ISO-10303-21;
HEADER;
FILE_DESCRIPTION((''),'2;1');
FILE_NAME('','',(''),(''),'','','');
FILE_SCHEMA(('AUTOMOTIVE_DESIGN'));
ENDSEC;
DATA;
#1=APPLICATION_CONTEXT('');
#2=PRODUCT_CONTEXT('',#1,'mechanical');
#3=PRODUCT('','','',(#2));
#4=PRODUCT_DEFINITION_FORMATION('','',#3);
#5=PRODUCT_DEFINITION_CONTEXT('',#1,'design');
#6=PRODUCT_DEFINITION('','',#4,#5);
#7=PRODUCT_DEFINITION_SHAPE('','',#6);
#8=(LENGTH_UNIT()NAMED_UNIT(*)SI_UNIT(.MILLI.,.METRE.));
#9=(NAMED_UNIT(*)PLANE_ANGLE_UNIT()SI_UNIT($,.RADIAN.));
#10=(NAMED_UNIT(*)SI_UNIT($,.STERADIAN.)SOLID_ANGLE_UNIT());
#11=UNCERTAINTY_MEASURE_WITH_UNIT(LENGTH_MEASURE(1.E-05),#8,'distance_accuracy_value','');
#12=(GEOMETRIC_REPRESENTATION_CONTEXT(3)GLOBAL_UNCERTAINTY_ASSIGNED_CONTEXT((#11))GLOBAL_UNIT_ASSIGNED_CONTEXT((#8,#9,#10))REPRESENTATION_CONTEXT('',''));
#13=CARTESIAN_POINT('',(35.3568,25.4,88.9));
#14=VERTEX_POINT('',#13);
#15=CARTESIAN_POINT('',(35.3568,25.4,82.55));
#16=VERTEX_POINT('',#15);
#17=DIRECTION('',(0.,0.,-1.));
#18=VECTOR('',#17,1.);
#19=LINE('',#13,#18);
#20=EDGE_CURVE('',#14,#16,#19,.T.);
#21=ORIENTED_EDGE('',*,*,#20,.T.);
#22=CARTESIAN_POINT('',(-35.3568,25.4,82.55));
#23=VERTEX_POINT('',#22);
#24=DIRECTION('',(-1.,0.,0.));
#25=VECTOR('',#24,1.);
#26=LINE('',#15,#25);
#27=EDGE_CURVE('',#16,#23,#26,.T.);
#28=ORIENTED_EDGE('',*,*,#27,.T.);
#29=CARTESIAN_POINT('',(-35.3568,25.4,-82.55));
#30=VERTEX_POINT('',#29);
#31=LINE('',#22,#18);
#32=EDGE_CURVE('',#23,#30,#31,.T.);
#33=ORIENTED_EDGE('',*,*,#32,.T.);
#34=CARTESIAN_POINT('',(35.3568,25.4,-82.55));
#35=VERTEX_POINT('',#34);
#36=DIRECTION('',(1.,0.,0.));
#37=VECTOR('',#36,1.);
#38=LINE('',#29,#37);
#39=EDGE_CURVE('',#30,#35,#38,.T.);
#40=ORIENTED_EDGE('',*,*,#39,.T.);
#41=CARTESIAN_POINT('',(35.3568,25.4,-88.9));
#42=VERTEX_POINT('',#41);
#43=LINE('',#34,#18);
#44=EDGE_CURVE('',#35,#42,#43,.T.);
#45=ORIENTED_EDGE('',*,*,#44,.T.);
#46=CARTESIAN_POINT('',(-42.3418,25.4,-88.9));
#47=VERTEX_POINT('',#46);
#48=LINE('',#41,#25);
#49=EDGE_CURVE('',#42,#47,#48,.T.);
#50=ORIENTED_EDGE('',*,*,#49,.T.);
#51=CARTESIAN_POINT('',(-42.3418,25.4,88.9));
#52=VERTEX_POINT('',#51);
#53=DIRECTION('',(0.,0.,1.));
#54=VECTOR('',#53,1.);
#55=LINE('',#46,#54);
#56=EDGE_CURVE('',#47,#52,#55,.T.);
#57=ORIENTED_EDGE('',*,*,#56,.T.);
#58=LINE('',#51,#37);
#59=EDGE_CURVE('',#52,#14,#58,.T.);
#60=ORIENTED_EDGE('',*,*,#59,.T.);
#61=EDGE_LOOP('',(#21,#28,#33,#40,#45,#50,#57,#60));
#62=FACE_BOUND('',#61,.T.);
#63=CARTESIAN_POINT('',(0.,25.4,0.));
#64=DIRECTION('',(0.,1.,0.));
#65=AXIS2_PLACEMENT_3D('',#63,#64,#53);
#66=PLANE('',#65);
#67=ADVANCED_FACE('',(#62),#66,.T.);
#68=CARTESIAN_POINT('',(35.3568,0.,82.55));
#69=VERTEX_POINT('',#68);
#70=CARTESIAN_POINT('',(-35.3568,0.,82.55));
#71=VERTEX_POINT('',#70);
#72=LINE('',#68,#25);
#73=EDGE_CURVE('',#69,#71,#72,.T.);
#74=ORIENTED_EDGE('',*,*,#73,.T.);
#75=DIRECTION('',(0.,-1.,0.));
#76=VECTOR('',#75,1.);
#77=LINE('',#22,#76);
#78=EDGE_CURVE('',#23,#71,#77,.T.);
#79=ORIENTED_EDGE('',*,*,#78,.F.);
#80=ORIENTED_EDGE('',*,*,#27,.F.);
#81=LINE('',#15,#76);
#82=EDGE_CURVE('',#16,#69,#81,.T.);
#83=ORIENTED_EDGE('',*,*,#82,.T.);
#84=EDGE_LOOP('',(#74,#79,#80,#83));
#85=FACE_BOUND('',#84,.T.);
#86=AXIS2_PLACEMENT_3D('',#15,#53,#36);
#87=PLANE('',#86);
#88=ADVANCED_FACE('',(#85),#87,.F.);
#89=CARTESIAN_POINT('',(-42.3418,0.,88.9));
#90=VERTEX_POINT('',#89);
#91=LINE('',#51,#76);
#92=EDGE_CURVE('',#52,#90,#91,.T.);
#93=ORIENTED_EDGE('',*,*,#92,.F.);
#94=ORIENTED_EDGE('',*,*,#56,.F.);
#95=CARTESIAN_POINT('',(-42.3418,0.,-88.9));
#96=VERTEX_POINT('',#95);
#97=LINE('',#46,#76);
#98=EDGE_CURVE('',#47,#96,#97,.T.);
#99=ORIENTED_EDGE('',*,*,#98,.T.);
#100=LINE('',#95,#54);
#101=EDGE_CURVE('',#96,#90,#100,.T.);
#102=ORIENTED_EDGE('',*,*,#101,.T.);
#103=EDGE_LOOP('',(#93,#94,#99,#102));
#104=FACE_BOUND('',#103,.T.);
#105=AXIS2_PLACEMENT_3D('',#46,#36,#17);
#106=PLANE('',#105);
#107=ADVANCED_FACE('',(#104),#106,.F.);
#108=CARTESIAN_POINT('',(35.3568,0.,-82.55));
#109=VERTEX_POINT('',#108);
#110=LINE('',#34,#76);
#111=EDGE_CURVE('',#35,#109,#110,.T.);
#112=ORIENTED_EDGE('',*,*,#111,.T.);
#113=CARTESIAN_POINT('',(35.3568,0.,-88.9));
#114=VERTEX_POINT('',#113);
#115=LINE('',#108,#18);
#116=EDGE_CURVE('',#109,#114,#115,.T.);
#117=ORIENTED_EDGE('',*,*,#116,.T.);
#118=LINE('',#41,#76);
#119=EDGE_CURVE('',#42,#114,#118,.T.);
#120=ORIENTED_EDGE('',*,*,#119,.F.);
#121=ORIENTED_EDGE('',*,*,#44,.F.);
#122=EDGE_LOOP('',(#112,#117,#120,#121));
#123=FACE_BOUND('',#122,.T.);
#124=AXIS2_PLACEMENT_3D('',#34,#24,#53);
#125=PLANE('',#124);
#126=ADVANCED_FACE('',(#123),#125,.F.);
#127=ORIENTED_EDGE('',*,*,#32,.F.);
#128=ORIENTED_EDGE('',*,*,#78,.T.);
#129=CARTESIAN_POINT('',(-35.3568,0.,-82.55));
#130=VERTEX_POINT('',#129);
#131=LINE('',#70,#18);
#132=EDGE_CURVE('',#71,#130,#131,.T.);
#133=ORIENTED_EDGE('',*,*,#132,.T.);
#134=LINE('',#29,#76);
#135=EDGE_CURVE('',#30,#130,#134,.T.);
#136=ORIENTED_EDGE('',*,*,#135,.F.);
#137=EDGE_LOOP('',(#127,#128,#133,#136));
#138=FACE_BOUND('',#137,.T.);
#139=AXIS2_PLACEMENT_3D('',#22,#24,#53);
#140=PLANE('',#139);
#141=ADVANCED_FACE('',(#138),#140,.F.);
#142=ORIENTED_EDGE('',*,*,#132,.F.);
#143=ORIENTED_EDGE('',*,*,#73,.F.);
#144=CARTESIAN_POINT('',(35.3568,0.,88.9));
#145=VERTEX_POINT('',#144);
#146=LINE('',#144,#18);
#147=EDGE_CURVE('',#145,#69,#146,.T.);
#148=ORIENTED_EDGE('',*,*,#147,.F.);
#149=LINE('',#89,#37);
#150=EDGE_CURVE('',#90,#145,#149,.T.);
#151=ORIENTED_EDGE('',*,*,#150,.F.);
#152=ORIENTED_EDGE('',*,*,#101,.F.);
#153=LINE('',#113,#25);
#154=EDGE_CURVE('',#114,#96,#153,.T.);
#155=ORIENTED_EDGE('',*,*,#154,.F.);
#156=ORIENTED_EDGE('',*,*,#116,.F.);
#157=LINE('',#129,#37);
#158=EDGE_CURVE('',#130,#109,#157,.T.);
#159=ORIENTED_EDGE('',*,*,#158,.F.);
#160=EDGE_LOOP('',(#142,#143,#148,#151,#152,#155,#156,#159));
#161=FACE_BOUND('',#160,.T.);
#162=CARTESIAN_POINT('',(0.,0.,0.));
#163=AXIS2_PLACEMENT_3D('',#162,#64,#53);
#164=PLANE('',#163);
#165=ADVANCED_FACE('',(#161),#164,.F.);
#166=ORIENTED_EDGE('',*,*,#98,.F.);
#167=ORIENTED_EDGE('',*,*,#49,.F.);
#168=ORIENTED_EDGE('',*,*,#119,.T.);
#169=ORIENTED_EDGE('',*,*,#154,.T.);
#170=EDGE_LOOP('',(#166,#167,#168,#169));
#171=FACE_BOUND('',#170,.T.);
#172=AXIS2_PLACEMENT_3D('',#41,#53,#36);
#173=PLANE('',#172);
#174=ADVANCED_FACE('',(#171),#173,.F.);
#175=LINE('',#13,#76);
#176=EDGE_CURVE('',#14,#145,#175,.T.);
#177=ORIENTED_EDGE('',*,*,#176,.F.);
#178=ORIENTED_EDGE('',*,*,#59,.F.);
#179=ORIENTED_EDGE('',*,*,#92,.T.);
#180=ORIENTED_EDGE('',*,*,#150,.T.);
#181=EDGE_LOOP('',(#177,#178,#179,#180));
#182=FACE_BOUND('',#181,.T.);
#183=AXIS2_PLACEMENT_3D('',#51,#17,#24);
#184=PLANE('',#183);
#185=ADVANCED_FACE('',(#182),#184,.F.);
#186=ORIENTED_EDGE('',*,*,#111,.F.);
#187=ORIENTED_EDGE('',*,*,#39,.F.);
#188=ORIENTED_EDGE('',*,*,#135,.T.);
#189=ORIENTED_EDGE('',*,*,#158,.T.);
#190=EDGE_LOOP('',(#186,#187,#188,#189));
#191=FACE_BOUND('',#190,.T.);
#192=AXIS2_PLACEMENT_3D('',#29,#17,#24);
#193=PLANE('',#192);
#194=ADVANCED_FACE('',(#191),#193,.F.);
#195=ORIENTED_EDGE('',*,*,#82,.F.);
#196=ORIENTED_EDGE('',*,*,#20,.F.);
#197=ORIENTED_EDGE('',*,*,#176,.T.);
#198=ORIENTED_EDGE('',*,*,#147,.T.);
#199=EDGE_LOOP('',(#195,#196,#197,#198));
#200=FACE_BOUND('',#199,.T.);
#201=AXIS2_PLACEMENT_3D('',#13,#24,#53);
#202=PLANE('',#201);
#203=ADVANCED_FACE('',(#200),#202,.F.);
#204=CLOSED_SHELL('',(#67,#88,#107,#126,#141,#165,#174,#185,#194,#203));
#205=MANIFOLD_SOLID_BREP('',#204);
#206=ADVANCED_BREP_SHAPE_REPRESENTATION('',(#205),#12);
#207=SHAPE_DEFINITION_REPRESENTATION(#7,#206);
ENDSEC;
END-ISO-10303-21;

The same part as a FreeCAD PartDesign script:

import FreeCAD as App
import Part
import Sketcher
from FreeCAD import Vector
Q = App.Units.Quantity


def add_polygon(sketch, points):
    """Adds a closed chain of lines whose ends are joined by coincident constraints."""
    first, n = sketch.GeometryCount, len(points)
    for a, b in zip(points, points[1:] + points[:1]):
        sketch.addGeometry(Part.LineSegment(App.Vector(*a, 0), App.Vector(*b, 0)), False)
    for i in range(n):
        sketch.addConstraint(Sketcher.Constraint("Coincident", first + i, 2, first + (i + 1) % n, 1))

doc = App.newDocument("Part")
body = doc.addObject("PartDesign::Body", "Body")

sketch1 = body.newObject("Sketcher::SketchObject", "Sketch")
sketch1.AttachmentSupport = (doc.getObject("XZ_Plane"), [""])
sketch1.MapMode = "FlatFace"
add_polygon(sketch1, [(35, 83), (-35, 83), (-35, -83), (35, -83), (35, -89), (-42, -89), (-42, 89), (35, 89)])
sketch1.addConstraint([
    Sketcher.Constraint("Horizontal", 0),
    Sketcher.Constraint("Vertical", 1),
    Sketcher.Constraint("Horizontal", 2),
    Sketcher.Constraint("Vertical", 3),
    Sketcher.Constraint("Horizontal", 4),
    Sketcher.Constraint("Vertical", 5),
    Sketcher.Constraint("Horizontal", 6),
    Sketcher.Constraint("Vertical", 7),
    Sketcher.Constraint("Symmetric", 0, 2, 2, 2, -1, 1),
    Sketcher.Constraint("Symmetric", 3, 2, 6, 2, -1),
    Sketcher.Constraint("DistanceY", 5, 1, 5, 2, Q("7 in")),
    Sketcher.Constraint("DistanceY", 1, 2, 1, 1, Q("6.5 in")),
    Sketcher.Constraint("DistanceX", 0, 2, 0, 1, Q("2.784 in")),
    Sketcher.Constraint("DistanceX", 4, 2, 4, 1, Q("3.059 in")),
])
pad1 = body.newObject("PartDesign::Pad", "Pad")
pad1.Profile = sketch1
pad1.Length = Q("1 in")
pad1.Reversed = True

doc.recompute()
